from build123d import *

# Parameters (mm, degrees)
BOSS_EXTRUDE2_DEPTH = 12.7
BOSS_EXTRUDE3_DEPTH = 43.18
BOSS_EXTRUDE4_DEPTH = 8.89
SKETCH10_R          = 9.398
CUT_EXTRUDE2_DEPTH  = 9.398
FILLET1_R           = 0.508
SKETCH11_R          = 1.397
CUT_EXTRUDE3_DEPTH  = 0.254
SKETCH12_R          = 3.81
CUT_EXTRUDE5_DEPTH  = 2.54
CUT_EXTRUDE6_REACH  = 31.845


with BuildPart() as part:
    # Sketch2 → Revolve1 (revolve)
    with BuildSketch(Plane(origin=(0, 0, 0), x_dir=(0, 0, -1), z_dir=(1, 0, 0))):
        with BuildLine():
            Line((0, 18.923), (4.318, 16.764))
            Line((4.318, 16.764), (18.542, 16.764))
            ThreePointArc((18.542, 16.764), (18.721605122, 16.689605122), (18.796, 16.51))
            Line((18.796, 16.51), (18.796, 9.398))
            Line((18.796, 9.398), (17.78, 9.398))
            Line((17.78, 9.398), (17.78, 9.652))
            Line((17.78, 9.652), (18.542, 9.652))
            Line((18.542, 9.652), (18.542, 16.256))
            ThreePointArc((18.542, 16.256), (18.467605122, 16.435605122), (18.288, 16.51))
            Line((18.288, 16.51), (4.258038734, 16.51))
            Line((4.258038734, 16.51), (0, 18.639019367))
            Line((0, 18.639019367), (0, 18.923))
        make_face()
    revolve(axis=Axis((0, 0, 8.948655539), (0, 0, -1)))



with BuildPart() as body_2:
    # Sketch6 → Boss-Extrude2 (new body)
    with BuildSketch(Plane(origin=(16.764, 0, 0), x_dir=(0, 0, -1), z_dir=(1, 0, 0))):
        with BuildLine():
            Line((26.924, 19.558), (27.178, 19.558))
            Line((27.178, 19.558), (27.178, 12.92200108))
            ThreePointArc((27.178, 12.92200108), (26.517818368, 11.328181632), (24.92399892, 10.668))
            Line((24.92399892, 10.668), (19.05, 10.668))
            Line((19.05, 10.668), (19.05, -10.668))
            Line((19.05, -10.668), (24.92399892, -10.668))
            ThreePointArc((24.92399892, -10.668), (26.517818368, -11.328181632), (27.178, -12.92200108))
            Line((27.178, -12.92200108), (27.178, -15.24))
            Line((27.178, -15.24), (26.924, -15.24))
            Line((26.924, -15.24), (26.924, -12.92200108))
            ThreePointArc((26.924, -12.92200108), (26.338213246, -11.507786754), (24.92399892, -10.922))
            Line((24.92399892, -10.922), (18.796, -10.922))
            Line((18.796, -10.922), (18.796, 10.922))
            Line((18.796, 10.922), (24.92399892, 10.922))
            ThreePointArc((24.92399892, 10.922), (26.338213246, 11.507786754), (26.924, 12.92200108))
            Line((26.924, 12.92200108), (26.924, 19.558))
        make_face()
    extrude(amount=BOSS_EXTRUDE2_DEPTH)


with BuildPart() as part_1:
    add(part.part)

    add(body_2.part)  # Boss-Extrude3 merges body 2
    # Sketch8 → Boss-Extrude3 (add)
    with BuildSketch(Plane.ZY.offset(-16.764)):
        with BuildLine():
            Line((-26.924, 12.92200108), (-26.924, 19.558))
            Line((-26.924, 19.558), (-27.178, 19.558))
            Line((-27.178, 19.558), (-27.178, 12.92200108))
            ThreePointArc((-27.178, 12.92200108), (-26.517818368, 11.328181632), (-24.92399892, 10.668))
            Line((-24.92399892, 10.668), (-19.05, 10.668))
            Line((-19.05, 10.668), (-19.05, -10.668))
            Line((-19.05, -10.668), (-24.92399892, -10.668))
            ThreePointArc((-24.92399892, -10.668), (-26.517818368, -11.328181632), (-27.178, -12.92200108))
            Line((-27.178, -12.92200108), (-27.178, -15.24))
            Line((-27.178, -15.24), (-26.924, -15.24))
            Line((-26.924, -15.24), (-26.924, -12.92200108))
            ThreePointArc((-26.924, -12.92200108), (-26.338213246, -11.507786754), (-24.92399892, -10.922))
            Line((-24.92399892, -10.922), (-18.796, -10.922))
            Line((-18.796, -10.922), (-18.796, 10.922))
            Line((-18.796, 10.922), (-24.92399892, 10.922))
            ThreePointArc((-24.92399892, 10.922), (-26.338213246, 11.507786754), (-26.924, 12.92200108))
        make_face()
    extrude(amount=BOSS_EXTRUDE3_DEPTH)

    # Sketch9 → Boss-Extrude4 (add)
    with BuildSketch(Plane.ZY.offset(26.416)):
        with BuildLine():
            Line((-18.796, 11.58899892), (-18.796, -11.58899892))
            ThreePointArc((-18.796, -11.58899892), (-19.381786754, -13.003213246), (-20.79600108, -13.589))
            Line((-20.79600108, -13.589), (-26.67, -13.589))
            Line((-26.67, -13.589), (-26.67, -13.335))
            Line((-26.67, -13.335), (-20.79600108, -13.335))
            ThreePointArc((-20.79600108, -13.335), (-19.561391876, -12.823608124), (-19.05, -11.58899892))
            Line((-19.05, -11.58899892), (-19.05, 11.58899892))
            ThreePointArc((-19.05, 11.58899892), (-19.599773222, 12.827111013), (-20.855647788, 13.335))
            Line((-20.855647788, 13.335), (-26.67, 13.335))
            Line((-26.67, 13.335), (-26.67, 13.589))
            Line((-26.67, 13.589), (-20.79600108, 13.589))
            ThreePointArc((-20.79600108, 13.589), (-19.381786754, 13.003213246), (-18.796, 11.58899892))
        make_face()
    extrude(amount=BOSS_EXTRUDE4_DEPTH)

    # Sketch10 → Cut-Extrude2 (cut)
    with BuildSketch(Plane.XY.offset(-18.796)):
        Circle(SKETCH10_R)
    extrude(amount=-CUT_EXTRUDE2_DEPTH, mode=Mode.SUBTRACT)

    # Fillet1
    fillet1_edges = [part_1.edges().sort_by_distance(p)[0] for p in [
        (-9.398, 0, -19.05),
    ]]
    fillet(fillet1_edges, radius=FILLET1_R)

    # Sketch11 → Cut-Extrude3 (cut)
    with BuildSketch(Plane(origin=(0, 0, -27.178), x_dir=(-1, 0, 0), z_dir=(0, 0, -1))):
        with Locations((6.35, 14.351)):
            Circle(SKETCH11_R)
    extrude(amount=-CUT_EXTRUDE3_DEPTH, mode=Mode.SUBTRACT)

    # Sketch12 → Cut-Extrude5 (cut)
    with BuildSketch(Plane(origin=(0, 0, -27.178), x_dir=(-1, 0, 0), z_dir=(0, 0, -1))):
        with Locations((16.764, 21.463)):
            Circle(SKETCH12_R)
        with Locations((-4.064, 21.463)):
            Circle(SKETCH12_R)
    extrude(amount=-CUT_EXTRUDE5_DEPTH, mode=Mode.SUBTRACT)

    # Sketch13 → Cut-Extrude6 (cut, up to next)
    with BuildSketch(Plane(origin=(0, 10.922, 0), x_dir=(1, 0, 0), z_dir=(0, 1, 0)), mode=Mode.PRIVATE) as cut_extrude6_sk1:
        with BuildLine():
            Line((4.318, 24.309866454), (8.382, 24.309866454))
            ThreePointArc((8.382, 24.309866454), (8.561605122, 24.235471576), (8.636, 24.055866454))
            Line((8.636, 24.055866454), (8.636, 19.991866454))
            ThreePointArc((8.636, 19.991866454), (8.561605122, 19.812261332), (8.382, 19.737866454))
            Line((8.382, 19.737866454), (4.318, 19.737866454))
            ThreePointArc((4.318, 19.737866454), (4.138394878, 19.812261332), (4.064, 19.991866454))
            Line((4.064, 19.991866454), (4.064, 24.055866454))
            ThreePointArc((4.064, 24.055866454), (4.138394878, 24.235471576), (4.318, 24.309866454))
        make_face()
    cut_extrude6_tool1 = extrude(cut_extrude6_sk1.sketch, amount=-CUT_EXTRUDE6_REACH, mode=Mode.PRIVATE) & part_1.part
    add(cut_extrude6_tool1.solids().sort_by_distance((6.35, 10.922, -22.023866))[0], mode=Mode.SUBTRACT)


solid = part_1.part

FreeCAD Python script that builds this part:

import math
import FreeCAD as App
import Part
import Sketcher
from FreeCAD import Vector
Q = App.Units.Quantity


def edges_at(feature, points):
    """Names of the edges that pass closest to the given points."""
    edges = feature.Shape.Edges
    near = lambda p: min(range(len(edges)), key=lambda i: edges[i].distToShape(Part.Vertex(*p))[0])
    return sorted({f"Edge{near(p) + 1}" for p in points})

doc = App.newDocument("Part")
body = doc.addObject("PartDesign::Body", "Body")

sketch1 = body.newObject("Sketcher::SketchObject", "Sketch")
sketch1.AttachmentSupport = (doc.getObject("YZ_Plane"), [""])
sketch1.MapMode = "FlatFace"
sketch1.addGeometry([
    Part.LineSegment(Vector(16.76, -4.32, 0), Vector(18.92, 0, 0)),
    Part.LineSegment(Vector(18.92, 0, 0), Vector(18.64, 0, 0)),
    Part.LineSegment(Vector(18.64, 0, 0), Vector(16.51, -4.26, 0)),
    Part.LineSegment(Vector(16.51, -4.26, 0), Vector(16.51, -18.29, 0)),
    Part.ArcOfCircle(Part.Circle(Vector(16.26, -18.29, 0), Vector(0, 0, 1), 0.25), math.radians(-90), math.radians(0)),
    Part.LineSegment(Vector(16.26, -18.54, 0), Vector(9.65, -18.54, 0)),
    Part.LineSegment(Vector(9.65, -18.54, 0), Vector(9.65, -17.78, 0)),
    Part.LineSegment(Vector(9.65, -17.78, 0), Vector(9.4, -17.78, 0)),
    Part.LineSegment(Vector(9.4, -17.78, 0), Vector(9.4, -18.8, 0)),
    Part.LineSegment(Vector(9.4, -18.8, 0), Vector(16.51, -18.8, 0)),
    Part.ArcOfCircle(Part.Circle(Vector(16.51, -18.54, 0), Vector(0, 0, 1), 0.25), math.radians(-90), math.radians(0)),
    Part.LineSegment(Vector(16.76, -18.54, 0), Vector(16.76, -4.32, 0)),
], False)
sketch1.addConstraint([
    Sketcher.Constraint("Coincident", 0, 2, 1, 1),
    Sketcher.Constraint("Coincident", 1, 2, 2, 1),
    Sketcher.Constraint("Coincident", 2, 2, 3, 1),
    Sketcher.Constraint("Tangent", 3, 2, 4, 2),
    Sketcher.Constraint("Tangent", 4, 1, 5, 1),
    Sketcher.Constraint("Coincident", 5, 2, 6, 1),
    Sketcher.Constraint("Coincident", 6, 2, 7, 1),
    Sketcher.Constraint("Coincident", 7, 2, 8, 1),
    Sketcher.Constraint("Coincident", 8, 2, 9, 1),
    Sketcher.Constraint("Tangent", 9, 2, 10, 1),
    Sketcher.Constraint("Tangent", 10, 2, 11, 1),
    Sketcher.Constraint("Coincident", 11, 2, 0, 1),
    Sketcher.Constraint("Horizontal", 1),
    Sketcher.Constraint("Vertical", 3),
    Sketcher.Constraint("Horizontal", 5),
    Sketcher.Constraint("Vertical", 6),
    Sketcher.Constraint("Horizontal", 7),
    Sketcher.Constraint("Vertical", 8),
    Sketcher.Constraint("Horizontal", 9),
    Sketcher.Constraint("Vertical", 11),
    Sketcher.Constraint("Equal", 4, 10),
    Sketcher.Constraint("PointOnObject", 0, 2, -1),
    Sketcher.Constraint("Parallel", 0, 2),
    Sketcher.Constraint("Horizontal", 10, 3, 4, 1),
    Sketcher.Constraint("Vertical", 10, 3, 2, 2),
    Sketcher.Constraint("Radius", 4, Q("0.01 in")),
    Sketcher.Constraint("DistanceX", 5, 2, 5, 1, Q("0.26 in")),
    Sketcher.Constraint("DistanceX", 7, 2, 7, 1, Q("0.01 in")),
    Sketcher.Constraint("DistanceY", 6, 1, 6, 2, Q("0.03 in")),
    Sketcher.Constraint("DistanceY", 11, 1, 11, 2, Q("0.56 in")),
    Sketcher.Constraint("DistanceY", 6, 2, -1, 1, Q("0.7 in")),
    Sketcher.Constraint("DistanceX", -1, 1, 4, 3, Q("0.64 in")),
    Sketcher.Constraint("DistanceX", -1, 1, 0, 2, Q("0.745 in")),
    Sketcher.Constraint("DistanceX", 1, 2, 1, 1, Q("0.283981 mm")),
])
revolution = body.newObject("PartDesign::Revolution", "Revolution")
revolution.Profile = sketch1
revolution.ReferenceAxis = (sketch1, ["V_Axis"])
revolution.Angle = 360
body2 = doc.addObject("PartDesign::Body", "Body001")

sketch2 = body2.newObject("Sketcher::SketchObject", "Sketch001")
sketch2.AttachmentSupport = (doc.getObject("YZ_Plane001"), [""])
sketch2.MapMode = "FlatFace"
sketch2.AttachmentOffset = App.Placement(Vector(0, 0, 0.66 * 25.4), App.Rotation())
sketch2.addGeometry([
    Part.LineSegment(Vector(19.56, -27.18, 0), Vector(19.56, -26.92, 0)),
    Part.LineSegment(Vector(19.56, -26.92, 0), Vector(12.92, -26.92, 0)),
    Part.ArcOfCircle(Part.Circle(Vector(12.92, -24.92, 0), Vector(0, 0, 1), 2), math.radians(180), math.radians(270)),
    Part.LineSegment(Vector(10.92, -24.92, 0), Vector(10.92, -18.8, 0)),
    Part.LineSegment(Vector(10.92, -18.8, 0), Vector(-10.92, -18.8, 0)),
    Part.LineSegment(Vector(-10.92, -18.8, 0), Vector(-10.92, -24.92, 0)),
    Part.ArcOfCircle(Part.Circle(Vector(-12.92, -24.92, 0), Vector(0, 0, 1), 2), math.radians(-90), math.radians(0)),
    Part.LineSegment(Vector(-12.92, -26.92, 0), Vector(-15.24, -26.92, 0)),
    Part.LineSegment(Vector(-15.24, -26.92, 0), Vector(-15.24, -27.18, 0)),
    Part.LineSegment(Vector(-15.24, -27.18, 0), Vector(-12.92, -27.18, 0)),
    Part.ArcOfCircle(Part.Circle(Vector(-12.92, -24.92, 0), Vector(0, 0, 1), 2.25), math.radians(-90), math.radians(0)),
    Part.LineSegment(Vector(-10.67, -24.92, 0), Vector(-10.67, -19.05, 0)),
    Part.LineSegment(Vector(-10.67, -19.05, 0), Vector(10.67, -19.05, 0)),
    Part.LineSegment(Vector(10.67, -19.05, 0), Vector(10.67, -24.92, 0)),
    Part.ArcOfCircle(Part.Circle(Vector(12.92, -24.92, 0), Vector(0, 0, 1), 2.25), math.radians(-180), math.radians(-90)),
    Part.LineSegment(Vector(12.92, -27.18, 0), Vector(19.56, -27.18, 0)),
], False)
sketch2.addConstraint([
    Sketcher.Constraint("Coincident", 0, 2, 1, 1),
    Sketcher.Constraint("Tangent", 1, 2, 2, 2),
    Sketcher.Constraint("Tangent", 2, 1, 3, 1),
    Sketcher.Constraint("Coincident", 3, 2, 4, 1),
    Sketcher.Constraint("Coincident", 4, 2, 5, 1),
    Sketcher.Constraint("Tangent", 5, 2, 6, 2),
    Sketcher.Constraint("Tangent", 6, 1, 7, 1),
    Sketcher.Constraint("Coincident", 7, 2, 8, 1),
    Sketcher.Constraint("Coincident", 8, 2, 9, 1),
    Sketcher.Constraint("Tangent", 9, 2, 10, 1),
    Sketcher.Constraint("Tangent", 10, 2, 11, 1),
    Sketcher.Constraint("Coincident", 11, 2, 12, 1),
    Sketcher.Constraint("Coincident", 12, 2, 13, 1),
    Sketcher.Constraint("Tangent", 13, 2, 14, 1),
    Sketcher.Constraint("Tangent", 14, 2, 15, 1),
    Sketcher.Constraint("Coincident", 15, 2, 0, 1),
    Sketcher.Constraint("Vertical", 0),
    Sketcher.Constraint("Horizontal", 1),
    Sketcher.Constraint("Vertical", 3),
    Sketcher.Constraint("Horizontal", 4),
    Sketcher.Constraint("Vertical", 5),
    Sketcher.Constraint("Horizontal", 7),
    Sketcher.Constraint("Vertical", 8),
    Sketcher.Constraint("Horizontal", 9),
    Sketcher.Constraint("Vertical", 11),
    Sketcher.Constraint("Horizontal", 12),
    Sketcher.Constraint("Vertical", 13),
    Sketcher.Constraint("Horizontal", 15),
    Sketcher.Constraint("Coincident", 10, 3, 6, 3),
    Sketcher.Constraint("Coincident", 14, 3, 2, 3),
    Sketcher.Constraint("Equal", 2, 6),
    Sketcher.Constraint("Equal", 10, 14),
    Sketcher.Constraint("Symmetric", 2, 3, 6, 3, -2),
    Sketcher.Constraint("DistanceX", 4, 2, 4, 1, Q("0.86 in")),
    Sketcher.Constraint("DistanceX", 12, 1, 12, 2, Q("0.84 in")),
    Sketcher.Constraint("DistanceX", 7, 2, -1, 1, Q("0.6 in")),
    Sketcher.Constraint("DistanceX", -1, 1, 0, 2, Q("0.77 in")),
    Sketcher.Constraint("DistanceY", 0, 2, -1, 1, Q("1.06 in")),
    Sketcher.Constraint("DistanceY", 3, 2, -1, 1, Q("0.74 in")),
    Sketcher.Constraint("DistanceY", 11, 2, -1, 1, Q("0.75 in")),
    Sketcher.Constraint("Radius", 2, Q("2.000001 mm")),
])
pad1 = body2.newObject("PartDesign::Pad", "Pad")
pad1.Profile = sketch2
pad1.Length = Q("0.5 in")
body.AllowCompound = True
doc.recompute()

boolean = body.newObject("PartDesign::Boolean", "Boolean")
boolean.Type = "Fuse"
boolean.addObjects([body2])

sketch3 = body.newObject("Sketcher::SketchObject", "Sketch002")
sketch3.AttachmentSupport = (doc.getObject("YZ_Plane"), [""])
sketch3.MapMode = "FlatFace"
sketch3.AttachmentOffset = App.Placement(Vector(0, 0, 0.66 * 25.4), App.Rotation())
sketch3.addGeometry([
    Part.LineSegment(Vector(12.92, -26.92, 0), Vector(19.56, -26.92, 0)),
    Part.LineSegment(Vector(19.56, -26.92, 0), Vector(19.56, -27.18, 0)),
    Part.LineSegment(Vector(19.56, -27.18, 0), Vector(12.92, -27.18, 0)),
    Part.ArcOfCircle(Part.Circle(Vector(12.92, -24.92, 0), Vector(0, 0, 1), 2.25), math.radians(-180), math.radians(-90)),
    Part.LineSegment(Vector(10.67, -24.92, 0), Vector(10.67, -19.05, 0)),
    Part.LineSegment(Vector(10.67, -19.05, 0), Vector(-10.67, -19.05, 0)),
    Part.LineSegment(Vector(-10.67, -19.05, 0), Vector(-10.67, -24.92, 0)),
    Part.ArcOfCircle(Part.Circle(Vector(-12.92, -24.92, 0), Vector(0, 0, 1), 2.25), math.radians(-90), math.radians(0)),
    Part.LineSegment(Vector(-12.92, -27.18, 0), Vector(-15.24, -27.18, 0)),
    Part.LineSegment(Vector(-15.24, -27.18, 0), Vector(-15.24, -26.92, 0)),
    Part.LineSegment(Vector(-15.24, -26.92, 0), Vector(-12.92, -26.92, 0)),
    Part.ArcOfCircle(Part.Circle(Vector(-12.92, -24.92, 0), Vector(0, 0, 1), 2), math.radians(-90), math.radians(0)),
    Part.LineSegment(Vector(-10.92, -24.92, 0), Vector(-10.92, -18.8, 0)),
    Part.LineSegment(Vector(-10.92, -18.8, 0), Vector(10.92, -18.8, 0)),
    Part.LineSegment(Vector(10.92, -18.8, 0), Vector(10.92, -24.92, 0)),
    Part.ArcOfCircle(Part.Circle(Vector(12.92, -24.92, 0), Vector(0, 0, 1), 2), math.radians(180), math.radians(270)),
], False)
sketch3.addConstraint([
    Sketcher.Constraint("Coincident", 0, 2, 1, 1),
    Sketcher.Constraint("Coincident", 1, 2, 2, 1),
    Sketcher.Constraint("Tangent", 2, 2, 3, 2),
    Sketcher.Constraint("Tangent", 3, 1, 4, 1),
    Sketcher.Constraint("Coincident", 4, 2, 5, 1),
    Sketcher.Constraint("Coincident", 5, 2, 6, 1),
    Sketcher.Constraint("Tangent", 6, 2, 7, 2),
    Sketcher.Constraint("Tangent", 7, 1, 8, 1),
    Sketcher.Constraint("Coincident", 8, 2, 9, 1),
    Sketcher.Constraint("Coincident", 9, 2, 10, 1),
    Sketcher.Constraint("Tangent", 10, 2, 11, 1),
    Sketcher.Constraint("Tangent", 11, 2, 12, 1),
    Sketcher.Constraint("Coincident", 12, 2, 13, 1),
    Sketcher.Constraint("Coincident", 13, 2, 14, 1),
    Sketcher.Constraint("Tangent", 14, 2, 15, 1),
    Sketcher.Constraint("Tangent", 15, 2, 0, 1),
    Sketcher.Constraint("Horizontal", 0),
    Sketcher.Constraint("Vertical", 1),
    Sketcher.Constraint("Horizontal", 2),
    Sketcher.Constraint("Vertical", 4),
    Sketcher.Constraint("Horizontal", 5),
    Sketcher.Constraint("Vertical", 6),
    Sketcher.Constraint("Horizontal", 8),
    Sketcher.Constraint("Vertical", 9),
    Sketcher.Constraint("Horizontal", 10),
    Sketcher.Constraint("Vertical", 12),
    Sketcher.Constraint("Horizontal", 13),
    Sketcher.Constraint("Vertical", 14),
    Sketcher.Constraint("Coincident", 11, 3, 7, 3),
    Sketcher.Constraint("Coincident", 15, 3, 3, 3),
    Sketcher.Constraint("Equal", 3, 7),
    Sketcher.Constraint("Equal", 11, 15),
    Sketcher.Constraint("Symmetric", 3, 3, 7, 3, -2),
    Sketcher.Constraint("DistanceX", 5, 2, 5, 1, Q("0.84 in")),
    Sketcher.Constraint("DistanceX", 13, 1, 13, 2, Q("0.86 in")),
    Sketcher.Constraint("DistanceX", 8, 2, -1, 1, Q("0.6 in")),
    Sketcher.Constraint("DistanceX", -1, 1, 0, 2, Q("0.77 in")),
    Sketcher.Constraint("DistanceY", 0, 2, -1, 1, Q("1.06 in")),
    Sketcher.Constraint("DistanceY", 4, 2, -1, 1, Q("0.75 in")),
    Sketcher.Constraint("DistanceY", 12, 2, -1, 1, Q("0.74 in")),
    Sketcher.Constraint("Radius", 3, Q("2.254001 mm")),
])
pad2 = body.newObject("PartDesign::Pad", "Pad001")
pad2.Profile = sketch3
pad2.Length = Q("1.7 in")
pad2.Reversed = True

sketch4 = body.newObject("Sketcher::SketchObject", "Sketch003")
sketch4.AttachmentSupport = (doc.getObject("YZ_Plane"), [""])
sketch4.MapMode = "FlatFace"
sketch4.AttachmentOffset = App.Placement(Vector(0, 0, -1.04 * 25.4), App.Rotation())
sketch4.addGeometry([
    Part.LineSegment(Vector(-11.59, -18.8, 0), Vector(11.59, -18.8, 0)),
    Part.ArcOfCircle(Part.Circle(Vector(11.59, -20.8, 0), Vector(0, 0, 1), 2), math.radians(0), math.radians(90)),
    Part.LineSegment(Vector(13.59, -20.8, 0), Vector(13.59, -26.67, 0)),
    Part.LineSegment(Vector(13.59, -26.67, 0), Vector(13.34, -26.67, 0)),
    Part.LineSegment(Vector(13.34, -26.67, 0), Vector(13.34, -20.86, 0)),
    Part.ArcOfCircle(Part.Circle(Vector(11.53, -20.86, 0), Vector(0, 0, 1), 1.81), math.radians(0), math.radians(88)),
    Part.LineSegment(Vector(11.59, -19.05, 0), Vector(-11.59, -19.05, 0)),
    Part.ArcOfCircle(Part.Circle(Vector(-11.59, -20.8, 0), Vector(0, 0, 1), 1.75), math.radians(90), math.radians(180)),
    Part.LineSegment(Vector(-13.34, -20.8, 0), Vector(-13.34, -26.67, 0)),
    Part.LineSegment(Vector(-13.34, -26.67, 0), Vector(-13.59, -26.67, 0)),
    Part.LineSegment(Vector(-13.59, -26.67, 0), Vector(-13.59, -20.8, 0)),
    Part.ArcOfCircle(Part.Circle(Vector(-11.59, -20.8, 0), Vector(0, 0, 1), 2), math.radians(90), math.radians(180)),
], False)
sketch4.addConstraint([
    Sketcher.Constraint("Tangent", 0, 2, 1, 2),
    Sketcher.Constraint("Tangent", 1, 1, 2, 1),
    Sketcher.Constraint("Coincident", 2, 2, 3, 1),
    Sketcher.Constraint("Coincident", 3, 2, 4, 1),
    Sketcher.Constraint("Tangent", 4, 2, 5, 1),
    Sketcher.Constraint("Coincident", 5, 2, 6, 1),
    Sketcher.Constraint("Tangent", 6, 2, 7, 1),
    Sketcher.Constraint("Tangent", 7, 2, 8, 1),
    Sketcher.Constraint("Coincident", 8, 2, 9, 1),
    Sketcher.Constraint("Coincident", 9, 2, 10, 1),
    Sketcher.Constraint("Tangent", 10, 2, 11, 2),
    Sketcher.Constraint("Tangent", 11, 1, 0, 1),
    Sketcher.Constraint("Horizontal", 0),
    Sketcher.Constraint("Vertical", 2),
    Sketcher.Constraint("Horizontal", 3),
    Sketcher.Constraint("Vertical", 4),
    Sketcher.Constraint("Horizontal", 6),
    Sketcher.Constraint("Vertical", 8),
    Sketcher.Constraint("Horizontal", 9),
    Sketcher.Constraint("Vertical", 10),
    Sketcher.Constraint("Coincident", 11, 3, 7, 3),
    Sketcher.Constraint("Equal", 1, 11),
    Sketcher.Constraint("Symmetric", 3, 2, 8, 2, -2),
    Sketcher.Constraint("Vertical", 0, 2, 5, 2),
    Sketcher.Constraint("Equal", 3, 9),
    Sketcher.Constraint("DistanceX", 3, 2, 3, 1, Q("0.01 in")),
    Sketcher.Constraint("DistanceY", 8, 2, 6, 2, Q("0.3 in")),
    Sketcher.Constraint("DistanceY", 0, 2, -1, 1, Q("0.74 in")),
    Sketcher.Constraint("Radius", 1, Q("2.000001 mm")),
    Sketcher.Constraint("DistanceX", -1, 1, 1, 1, Q("0.535 in")),
    Sketcher.Constraint("Radius", 5, Q("1.806667 mm")),
])
pad3 = body.newObject("PartDesign::Pad", "Pad002")
pad3.Profile = sketch4
pad3.Length = Q("0.35 in")
pad3.Reversed = True

sketch5 = body.newObject("Sketcher::SketchObject", "Sketch004")
sketch5.AttachmentSupport = (doc.getObject("XY_Plane"), [""])
sketch5.MapMode = "FlatFace"
sketch5.AttachmentOffset = App.Placement(Vector(0, 0, -0.74 * 25.4), App.Rotation())
sketch5.addGeometry(Part.Circle(Vector(0, 0, 0), Vector(0, 0, 1), 9), False)
sketch5.addConstraint([
    Sketcher.Constraint("Coincident", 0, 3, -1, 1),
    Sketcher.Constraint("Diameter", 0, Q("0.74 in")),
])
pocket1 = body.newObject("PartDesign::Pocket", "Pocket")
pocket1.Profile = sketch5
pocket1.Length = Q("0.37 in")
doc.recompute()

fillet = body.newObject("PartDesign::Fillet", "Fillet")
fillet.Base = (pocket1, edges_at(pocket1, [(-9.398, 0, -19.05)]))
fillet.Radius = Q("0.02 in")

sketch6 = body.newObject("Sketcher::SketchObject", "Sketch005")
sketch6.AttachmentSupport = (doc.getObject("XY_Plane"), [""])
sketch6.MapMode = "FlatFace"
sketch6.AttachmentOffset = App.Placement(Vector(0, 0, -1.07 * 25.4), App.Rotation())
sketch6.addGeometry(Part.Circle(Vector(-6.3, 14.4, 0), Vector(0, 0, 1), 1.4), False)
sketch6.addConstraint([
    Sketcher.Constraint("Diameter", 0, Q("0.11 in")),
    Sketcher.Constraint("DistanceX", 0, 3, -1, 1, Q("0.25 in")),
    Sketcher.Constraint("DistanceY", -1, 1, 0, 3, Q("0.565 in")),
])
pocket2 = body.newObject("PartDesign::Pocket", "Pocket001")
pocket2.Profile = sketch6
pocket2.Length = Q("0.01 in")
pocket2.Reversed = True

sketch7 = body.newObject("Sketcher::SketchObject", "Sketch006")
sketch7.AttachmentSupport = (doc.getObject("XY_Plane"), [""])
sketch7.MapMode = "FlatFace"
sketch7.AttachmentOffset = App.Placement(Vector(0, 0, -1.07 * 25.4), App.Rotation())
sketch7.addGeometry([
    Part.Circle(Vector(-16.8, 21.5, 0), Vector(0, 0, 1), 3.8),
    Part.Circle(Vector(4.1, 21.5, 0), Vector(0, 0, 1), 3.8),
], False)
sketch7.addConstraint([
    Sketcher.Constraint("Equal", 0, 1),
    Sketcher.Constraint("Horizontal", 0, 3, 1, 3),
    Sketcher.Constraint("Diameter", 0, Q("0.3 in")),
    Sketcher.Constraint("DistanceX", 0, 3, -1, 1, Q("0.66 in")),
    Sketcher.Constraint("DistanceX", -1, 1, 1, 3, Q("0.16 in")),
    Sketcher.Constraint("DistanceY", -1, 1, 0, 3, Q("0.845 in")),
])
pocket3 = body.newObject("PartDesign::Pocket", "Pocket002")
pocket3.Profile = sketch7
pocket3.Length = Q("0.1 in")
pocket3.Reversed = True

sketch8 = body.newObject("Sketcher::SketchObject", "Sketch007")
sketch8.AttachmentSupport = (doc.getObject("XZ_Plane"), [""])
sketch8.MapMode = "FlatFace"
sketch8.AttachmentOffset = App.Placement(Vector(0, 0, -0.43 * 25.4), App.Rotation())
sketch8.addGeometry([
    Part.LineSegment(Vector(8.38, -24.31, 0), Vector(4.32, -24.31, 0)),
    Part.ArcOfCircle(Part.Circle(Vector(4.32, -24.06, 0), Vector(0, 0, 1), 0.25), math.radians(-180), math.radians(-90)),
    Part.LineSegment(Vector(4.06, -24.06, 0), Vector(4.06, -19.99, 0)),
    Part.ArcOfCircle(Part.Circle(Vector(4.32, -19.99, 0), Vector(0, 0, 1), 0.25), math.radians(90), math.radians(180)),
    Part.LineSegment(Vector(4.32, -19.74, 0), Vector(8.38, -19.74, 0)),
    Part.ArcOfCircle(Part.Circle(Vector(8.38, -19.99, 0), Vector(0, 0, 1), 0.25), math.radians(0), math.radians(90)),
    Part.LineSegment(Vector(8.64, -19.99, 0), Vector(8.64, -24.06, 0)),
    Part.ArcOfCircle(Part.Circle(Vector(8.38, -24.06, 0), Vector(0, 0, 1), 0.25), math.radians(-90), math.radians(0)),
], False)
sketch8.addConstraint([
    Sketcher.Constraint("Tangent", 0, 2, 1, 2),
    Sketcher.Constraint("Tangent", 1, 1, 2, 1),
    Sketcher.Constraint("Tangent", 2, 2, 3, 2),
    Sketcher.Constraint("Tangent", 3, 1, 4, 1),
    Sketcher.Constraint("Tangent", 4, 2, 5, 2),
    Sketcher.Constraint("Tangent", 5, 1, 6, 1),
    Sketcher.Constraint("Tangent", 6, 2, 7, 2),
    Sketcher.Constraint("Tangent", 7, 1, 0, 1),
    Sketcher.Constraint("Horizontal", 0),
    Sketcher.Constraint("Vertical", 2),
    Sketcher.Constraint("Horizontal", 4),
    Sketcher.Constraint("Vertical", 6),
    Sketcher.Constraint("Equal", 1, 3),
    Sketcher.Constraint("Equal", 3, 5),
    Sketcher.Constraint("Equal", 5, 7),
    Sketcher.Constraint("Equal", 4, 2),
    Sketcher.Constraint("Radius", 1, Q("0.01 in")),
    Sketcher.Constraint("DistanceX", 0, 2, 0, 1, Q("0.16 in")),
    Sketcher.Constraint("DistanceX", -1, 1, 1, 3, Q("0.17 in")),
    Sketcher.Constraint("DistanceY", 1, 3, -1, 1, Q("24.055866 mm")),
])
pocket4 = body.newObject("PartDesign::Pocket", "Pocket003")
pocket4.Profile = sketch8
pocket4.Type = "UpToFirst"
pocket4.Reversed = True

doc.recompute()
